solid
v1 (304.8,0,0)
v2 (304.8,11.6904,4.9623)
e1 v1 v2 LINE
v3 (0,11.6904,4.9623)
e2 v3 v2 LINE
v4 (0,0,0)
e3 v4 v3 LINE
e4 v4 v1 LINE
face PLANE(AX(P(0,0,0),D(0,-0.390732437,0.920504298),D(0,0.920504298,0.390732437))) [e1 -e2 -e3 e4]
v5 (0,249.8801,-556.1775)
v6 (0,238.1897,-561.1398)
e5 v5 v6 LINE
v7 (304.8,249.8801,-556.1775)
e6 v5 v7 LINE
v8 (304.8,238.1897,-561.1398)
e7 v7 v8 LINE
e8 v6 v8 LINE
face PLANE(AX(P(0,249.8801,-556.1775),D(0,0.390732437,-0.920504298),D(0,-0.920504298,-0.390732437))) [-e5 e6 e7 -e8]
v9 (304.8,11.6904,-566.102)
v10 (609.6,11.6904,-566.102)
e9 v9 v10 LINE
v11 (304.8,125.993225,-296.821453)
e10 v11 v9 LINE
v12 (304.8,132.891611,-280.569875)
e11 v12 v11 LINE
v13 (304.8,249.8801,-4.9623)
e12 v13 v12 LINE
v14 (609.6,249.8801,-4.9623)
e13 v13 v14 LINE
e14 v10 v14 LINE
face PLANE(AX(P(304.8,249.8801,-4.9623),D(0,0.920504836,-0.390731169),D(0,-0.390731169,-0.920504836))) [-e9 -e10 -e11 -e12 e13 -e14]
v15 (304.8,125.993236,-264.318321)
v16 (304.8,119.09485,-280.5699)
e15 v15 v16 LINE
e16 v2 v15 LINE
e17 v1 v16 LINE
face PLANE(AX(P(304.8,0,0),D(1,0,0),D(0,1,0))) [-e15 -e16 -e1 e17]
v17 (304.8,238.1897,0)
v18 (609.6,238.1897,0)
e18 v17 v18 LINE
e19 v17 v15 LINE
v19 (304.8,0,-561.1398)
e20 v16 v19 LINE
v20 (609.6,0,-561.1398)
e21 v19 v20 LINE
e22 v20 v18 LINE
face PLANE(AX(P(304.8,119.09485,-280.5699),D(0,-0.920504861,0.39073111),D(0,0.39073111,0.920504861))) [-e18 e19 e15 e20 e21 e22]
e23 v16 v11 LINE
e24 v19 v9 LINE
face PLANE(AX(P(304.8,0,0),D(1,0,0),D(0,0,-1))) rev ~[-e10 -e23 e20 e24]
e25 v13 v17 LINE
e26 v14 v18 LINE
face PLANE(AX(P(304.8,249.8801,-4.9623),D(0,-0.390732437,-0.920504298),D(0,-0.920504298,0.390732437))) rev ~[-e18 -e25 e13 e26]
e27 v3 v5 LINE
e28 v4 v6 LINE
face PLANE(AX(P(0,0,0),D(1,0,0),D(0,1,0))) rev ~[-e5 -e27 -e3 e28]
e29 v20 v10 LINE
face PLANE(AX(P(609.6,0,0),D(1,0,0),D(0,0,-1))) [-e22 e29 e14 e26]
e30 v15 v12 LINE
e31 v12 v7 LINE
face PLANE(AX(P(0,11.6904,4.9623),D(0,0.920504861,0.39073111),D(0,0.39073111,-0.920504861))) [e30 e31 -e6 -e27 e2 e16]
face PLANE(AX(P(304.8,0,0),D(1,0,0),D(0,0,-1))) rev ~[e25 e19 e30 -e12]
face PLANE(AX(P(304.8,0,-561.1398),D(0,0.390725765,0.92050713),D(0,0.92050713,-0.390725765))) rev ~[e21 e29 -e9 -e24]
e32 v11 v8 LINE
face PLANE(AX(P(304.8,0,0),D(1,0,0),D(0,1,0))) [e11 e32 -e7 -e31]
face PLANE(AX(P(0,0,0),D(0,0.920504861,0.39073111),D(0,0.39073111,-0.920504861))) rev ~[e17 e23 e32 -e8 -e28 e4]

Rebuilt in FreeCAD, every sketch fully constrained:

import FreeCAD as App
import Part
import Sketcher
from FreeCAD import Vector
Q = App.Units.Quantity


def add_polygon(sketch, points):
    """Adds a closed chain of lines whose ends are joined by coincident constraints."""
    first, n = sketch.GeometryCount, len(points)
    for a, b in zip(points, points[1:] + points[:1]):
        sketch.addGeometry(Part.LineSegment(App.Vector(*a, 0), App.Vector(*b, 0)), False)
    for i in range(n):
        sketch.addConstraint(Sketcher.Constraint("Coincident", first + i, 2, first + (i + 1) % n, 1))

doc = App.newDocument("Part")
body = doc.addObject("PartDesign::Body", "Body")

sketch1 = doc.addObject("Sketcher::SketchObject", "Sketch")
body.addObject(sketch1)
sketch1.AttachmentSupport = (doc.YZ_Plane, [""])
sketch1.MapMode = "FlatFace"
add_polygon(sketch1, [(12, 5), (0, 0), (238, -561), (250, -556)])
sketch1.addConstraint([
    Sketcher.Constraint("Coincident", 0, 2, -1, 1),
    Sketcher.Constraint("Perpendicular", 0, 1),
    Sketcher.Constraint("Perpendicular", 1, 2),
    Sketcher.Constraint("Perpendicular", 2, 3),
    Sketcher.Constraint("Distance", 1, Q("24 in")),
    Sketcher.Constraint("Angle", 2, Q("23 deg")),
    Sketcher.Constraint("Distance", 0, Q("0.5 in")),
])
pad1 = doc.addObject("PartDesign::Pad", "Pad")
body.addObject(pad1)
pad1.Profile = sketch1
pad1.Length = Q("12 in")

sketch2 = doc.addObject("Sketcher::SketchObject", "Sketch001")
body.addObject(sketch2)
sketch2.AttachmentSupport = (doc.YZ_Plane, [""])
sketch2.MapMode = "FlatFace"
sketch2.AttachmentOffset = App.Placement(Vector(0, 0, 12 * 25.4), App.Rotation())
add_polygon(sketch2, [(238.1897, 0), (0, -561.1398), (11.6904, -566.102), (249.8801, -4.9623)])
sketch2.addConstraint([
    Sketcher.Constraint("PointOnObject", 0, 2, -2),
    Sketcher.Constraint("PointOnObject", 3, 2, -1),
    Sketcher.Constraint("Distance", 0, Q("24 in")),
    Sketcher.Constraint("Distance", 2, Q("24 in")),
    Sketcher.Constraint("Distance", 1, Q("0.5 in")),
    Sketcher.Constraint("Distance", 3, Q("0.5 in")),
    Sketcher.Constraint("DistanceX", -1, 1, 2, 2, Q("9.8378 in")),
    Sketcher.Constraint("DistanceX", 1, 2, 3, 2, Q("8.9173 in")),
])
pad2 = doc.addObject("PartDesign::Pad", "Pad001")
body.addObject(pad2)
pad2.Profile = sketch2
pad2.Length = Q("12 in")

doc.recompute()
